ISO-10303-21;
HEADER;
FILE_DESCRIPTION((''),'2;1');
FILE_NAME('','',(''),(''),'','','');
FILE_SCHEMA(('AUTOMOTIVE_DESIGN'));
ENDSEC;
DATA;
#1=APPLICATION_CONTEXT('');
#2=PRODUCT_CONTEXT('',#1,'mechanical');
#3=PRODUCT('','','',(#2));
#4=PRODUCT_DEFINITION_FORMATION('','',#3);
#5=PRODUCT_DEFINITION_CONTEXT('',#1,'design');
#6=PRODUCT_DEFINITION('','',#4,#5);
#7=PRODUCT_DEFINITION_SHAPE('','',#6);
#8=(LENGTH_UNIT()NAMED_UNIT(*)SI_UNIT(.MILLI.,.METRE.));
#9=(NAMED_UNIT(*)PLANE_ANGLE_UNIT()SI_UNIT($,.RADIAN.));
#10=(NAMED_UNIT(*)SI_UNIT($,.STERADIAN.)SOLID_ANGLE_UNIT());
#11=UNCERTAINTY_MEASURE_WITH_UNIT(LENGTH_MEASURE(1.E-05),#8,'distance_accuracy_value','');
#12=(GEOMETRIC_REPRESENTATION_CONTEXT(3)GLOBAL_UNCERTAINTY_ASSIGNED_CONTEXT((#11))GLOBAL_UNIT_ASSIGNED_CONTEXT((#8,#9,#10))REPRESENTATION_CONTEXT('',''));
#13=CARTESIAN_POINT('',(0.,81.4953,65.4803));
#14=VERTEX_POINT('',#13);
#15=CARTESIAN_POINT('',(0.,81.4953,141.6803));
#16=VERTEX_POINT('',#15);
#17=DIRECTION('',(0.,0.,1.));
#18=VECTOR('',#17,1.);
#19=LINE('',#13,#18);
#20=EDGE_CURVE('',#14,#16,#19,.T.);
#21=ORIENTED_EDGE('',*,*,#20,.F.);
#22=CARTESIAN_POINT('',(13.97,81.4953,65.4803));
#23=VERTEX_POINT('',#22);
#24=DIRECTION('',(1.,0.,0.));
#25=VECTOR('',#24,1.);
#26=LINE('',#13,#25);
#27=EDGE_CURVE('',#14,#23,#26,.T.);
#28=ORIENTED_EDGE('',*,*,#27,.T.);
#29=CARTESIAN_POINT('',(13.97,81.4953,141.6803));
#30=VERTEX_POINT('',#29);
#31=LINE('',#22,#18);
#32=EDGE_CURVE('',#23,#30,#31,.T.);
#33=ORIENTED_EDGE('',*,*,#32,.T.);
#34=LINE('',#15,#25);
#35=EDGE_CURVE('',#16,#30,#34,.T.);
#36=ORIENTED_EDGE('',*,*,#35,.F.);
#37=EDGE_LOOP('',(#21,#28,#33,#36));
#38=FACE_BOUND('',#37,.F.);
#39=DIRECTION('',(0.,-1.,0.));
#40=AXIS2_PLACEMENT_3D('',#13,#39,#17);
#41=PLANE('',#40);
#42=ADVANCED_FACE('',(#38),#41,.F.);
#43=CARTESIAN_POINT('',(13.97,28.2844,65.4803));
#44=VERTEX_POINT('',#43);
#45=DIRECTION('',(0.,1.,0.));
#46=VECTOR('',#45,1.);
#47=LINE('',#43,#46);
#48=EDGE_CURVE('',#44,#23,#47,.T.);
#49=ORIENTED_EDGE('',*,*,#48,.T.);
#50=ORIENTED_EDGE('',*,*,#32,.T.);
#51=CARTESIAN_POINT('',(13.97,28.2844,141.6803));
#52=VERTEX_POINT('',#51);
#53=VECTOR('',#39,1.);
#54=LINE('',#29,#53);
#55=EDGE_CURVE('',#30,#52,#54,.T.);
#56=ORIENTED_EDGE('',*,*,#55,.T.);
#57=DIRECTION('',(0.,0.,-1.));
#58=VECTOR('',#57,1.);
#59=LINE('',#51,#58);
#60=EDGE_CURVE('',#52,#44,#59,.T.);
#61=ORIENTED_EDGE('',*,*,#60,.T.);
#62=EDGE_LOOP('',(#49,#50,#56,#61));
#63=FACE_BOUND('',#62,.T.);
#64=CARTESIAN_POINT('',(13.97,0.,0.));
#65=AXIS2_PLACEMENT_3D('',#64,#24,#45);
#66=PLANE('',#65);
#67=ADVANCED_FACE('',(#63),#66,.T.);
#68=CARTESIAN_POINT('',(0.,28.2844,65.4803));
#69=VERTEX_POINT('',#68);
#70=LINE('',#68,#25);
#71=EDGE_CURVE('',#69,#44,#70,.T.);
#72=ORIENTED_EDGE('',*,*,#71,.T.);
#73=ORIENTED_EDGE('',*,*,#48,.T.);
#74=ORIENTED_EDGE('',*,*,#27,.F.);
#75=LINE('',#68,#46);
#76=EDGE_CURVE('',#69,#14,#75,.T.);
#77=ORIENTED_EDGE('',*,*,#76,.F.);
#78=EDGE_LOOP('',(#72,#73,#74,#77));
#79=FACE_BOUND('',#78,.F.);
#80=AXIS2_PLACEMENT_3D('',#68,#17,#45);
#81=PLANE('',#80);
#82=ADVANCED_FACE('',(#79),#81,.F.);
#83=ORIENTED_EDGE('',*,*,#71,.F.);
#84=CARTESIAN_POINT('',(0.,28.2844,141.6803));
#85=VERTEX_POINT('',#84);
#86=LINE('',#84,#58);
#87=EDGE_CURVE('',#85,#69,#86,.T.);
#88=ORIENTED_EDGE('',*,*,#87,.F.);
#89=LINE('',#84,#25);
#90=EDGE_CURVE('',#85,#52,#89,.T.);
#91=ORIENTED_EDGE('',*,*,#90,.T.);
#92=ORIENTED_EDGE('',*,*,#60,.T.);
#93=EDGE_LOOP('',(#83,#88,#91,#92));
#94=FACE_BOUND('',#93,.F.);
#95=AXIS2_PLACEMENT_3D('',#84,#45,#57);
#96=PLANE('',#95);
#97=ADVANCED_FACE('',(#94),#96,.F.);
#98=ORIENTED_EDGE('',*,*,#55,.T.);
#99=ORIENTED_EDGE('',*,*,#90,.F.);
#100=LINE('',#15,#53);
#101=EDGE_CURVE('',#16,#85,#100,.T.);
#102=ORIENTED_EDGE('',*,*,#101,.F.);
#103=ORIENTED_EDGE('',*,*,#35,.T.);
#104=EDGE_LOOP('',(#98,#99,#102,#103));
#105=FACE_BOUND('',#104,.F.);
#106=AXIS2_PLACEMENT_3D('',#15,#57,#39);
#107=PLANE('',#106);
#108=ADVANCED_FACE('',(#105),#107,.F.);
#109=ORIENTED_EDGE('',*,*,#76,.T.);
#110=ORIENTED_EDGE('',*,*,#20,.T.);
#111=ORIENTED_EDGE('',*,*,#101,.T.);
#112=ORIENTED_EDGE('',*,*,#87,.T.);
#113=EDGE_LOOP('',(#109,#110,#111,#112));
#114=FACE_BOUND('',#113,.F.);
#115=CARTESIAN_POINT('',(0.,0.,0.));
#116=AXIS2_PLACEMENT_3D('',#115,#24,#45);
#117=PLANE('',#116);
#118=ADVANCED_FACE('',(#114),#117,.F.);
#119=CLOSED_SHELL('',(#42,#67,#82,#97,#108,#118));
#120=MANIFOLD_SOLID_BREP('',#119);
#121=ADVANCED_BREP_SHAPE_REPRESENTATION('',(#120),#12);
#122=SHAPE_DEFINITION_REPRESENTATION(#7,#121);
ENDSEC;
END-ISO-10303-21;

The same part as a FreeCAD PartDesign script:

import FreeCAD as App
import Part
import Sketcher
Q = App.Units.Quantity


def add_polygon(sketch, points):
    """Adds a closed chain of lines whose ends are joined by coincident constraints."""
    first, n = sketch.GeometryCount, len(points)
    for a, b in zip(points, points[1:] + points[:1]):
        sketch.addGeometry(Part.LineSegment(App.Vector(*a, 0), App.Vector(*b, 0)), False)
    for i in range(n):
        sketch.addConstraint(Sketcher.Constraint("Coincident", first + i, 2, first + (i + 1) % n, 1))

doc = App.newDocument("Part")
params = doc.addObject("Spreadsheet::Sheet", "Params")
for row, (alias, value) in enumerate([
    ("sketch1_height", "3 in"),
    ("pad1_length", "0.55 in"),
], start=1):
    params.set(f"A{row}", alias)
    params.set(f"B{row}", "=" + value)
    params.setAlias(f"B{row}", alias)

body = doc.addObject("PartDesign::Body", "Body")

# Sketch on YZ plane
sketch1 = doc.addObject("Sketcher::SketchObject", "Sketch")
body.addObject(sketch1)
sketch1.AttachmentSupport = (doc.YZ_Plane, [""])
sketch1.MapMode = "FlatFace"
add_polygon(sketch1, [(81, 65), (81, 142), (28, 142), (28, 65)])  # lines 0-3
sketch1.addConstraint([
    Sketcher.Constraint("Vertical", 0),
    Sketcher.Constraint("Horizontal", 1),
    Sketcher.Constraint("Vertical", 2),
    Sketcher.Constraint("Horizontal", 3),
    Sketcher.Constraint("DistanceY", 0, 1, 0, 2, Q("3 in")),
    Sketcher.Constraint("DistanceX", 1, 2, 1, 1, Q("53.211 mm")),
    Sketcher.Constraint("DistanceX", -1, 1, 0, 2, Q("81.4953 mm")),
    Sketcher.Constraint("DistanceY", -1, 1, 0, 2, Q("141.6803 mm")),
])
sketch1.setExpression("Constraints[8]", "Params.sketch1_height")
pad1 = doc.addObject("PartDesign::Pad", "Pad")
body.addObject(pad1)
pad1.Profile = sketch1
pad1.setExpression("Length", "Params.pad1_length")

doc.recompute()
